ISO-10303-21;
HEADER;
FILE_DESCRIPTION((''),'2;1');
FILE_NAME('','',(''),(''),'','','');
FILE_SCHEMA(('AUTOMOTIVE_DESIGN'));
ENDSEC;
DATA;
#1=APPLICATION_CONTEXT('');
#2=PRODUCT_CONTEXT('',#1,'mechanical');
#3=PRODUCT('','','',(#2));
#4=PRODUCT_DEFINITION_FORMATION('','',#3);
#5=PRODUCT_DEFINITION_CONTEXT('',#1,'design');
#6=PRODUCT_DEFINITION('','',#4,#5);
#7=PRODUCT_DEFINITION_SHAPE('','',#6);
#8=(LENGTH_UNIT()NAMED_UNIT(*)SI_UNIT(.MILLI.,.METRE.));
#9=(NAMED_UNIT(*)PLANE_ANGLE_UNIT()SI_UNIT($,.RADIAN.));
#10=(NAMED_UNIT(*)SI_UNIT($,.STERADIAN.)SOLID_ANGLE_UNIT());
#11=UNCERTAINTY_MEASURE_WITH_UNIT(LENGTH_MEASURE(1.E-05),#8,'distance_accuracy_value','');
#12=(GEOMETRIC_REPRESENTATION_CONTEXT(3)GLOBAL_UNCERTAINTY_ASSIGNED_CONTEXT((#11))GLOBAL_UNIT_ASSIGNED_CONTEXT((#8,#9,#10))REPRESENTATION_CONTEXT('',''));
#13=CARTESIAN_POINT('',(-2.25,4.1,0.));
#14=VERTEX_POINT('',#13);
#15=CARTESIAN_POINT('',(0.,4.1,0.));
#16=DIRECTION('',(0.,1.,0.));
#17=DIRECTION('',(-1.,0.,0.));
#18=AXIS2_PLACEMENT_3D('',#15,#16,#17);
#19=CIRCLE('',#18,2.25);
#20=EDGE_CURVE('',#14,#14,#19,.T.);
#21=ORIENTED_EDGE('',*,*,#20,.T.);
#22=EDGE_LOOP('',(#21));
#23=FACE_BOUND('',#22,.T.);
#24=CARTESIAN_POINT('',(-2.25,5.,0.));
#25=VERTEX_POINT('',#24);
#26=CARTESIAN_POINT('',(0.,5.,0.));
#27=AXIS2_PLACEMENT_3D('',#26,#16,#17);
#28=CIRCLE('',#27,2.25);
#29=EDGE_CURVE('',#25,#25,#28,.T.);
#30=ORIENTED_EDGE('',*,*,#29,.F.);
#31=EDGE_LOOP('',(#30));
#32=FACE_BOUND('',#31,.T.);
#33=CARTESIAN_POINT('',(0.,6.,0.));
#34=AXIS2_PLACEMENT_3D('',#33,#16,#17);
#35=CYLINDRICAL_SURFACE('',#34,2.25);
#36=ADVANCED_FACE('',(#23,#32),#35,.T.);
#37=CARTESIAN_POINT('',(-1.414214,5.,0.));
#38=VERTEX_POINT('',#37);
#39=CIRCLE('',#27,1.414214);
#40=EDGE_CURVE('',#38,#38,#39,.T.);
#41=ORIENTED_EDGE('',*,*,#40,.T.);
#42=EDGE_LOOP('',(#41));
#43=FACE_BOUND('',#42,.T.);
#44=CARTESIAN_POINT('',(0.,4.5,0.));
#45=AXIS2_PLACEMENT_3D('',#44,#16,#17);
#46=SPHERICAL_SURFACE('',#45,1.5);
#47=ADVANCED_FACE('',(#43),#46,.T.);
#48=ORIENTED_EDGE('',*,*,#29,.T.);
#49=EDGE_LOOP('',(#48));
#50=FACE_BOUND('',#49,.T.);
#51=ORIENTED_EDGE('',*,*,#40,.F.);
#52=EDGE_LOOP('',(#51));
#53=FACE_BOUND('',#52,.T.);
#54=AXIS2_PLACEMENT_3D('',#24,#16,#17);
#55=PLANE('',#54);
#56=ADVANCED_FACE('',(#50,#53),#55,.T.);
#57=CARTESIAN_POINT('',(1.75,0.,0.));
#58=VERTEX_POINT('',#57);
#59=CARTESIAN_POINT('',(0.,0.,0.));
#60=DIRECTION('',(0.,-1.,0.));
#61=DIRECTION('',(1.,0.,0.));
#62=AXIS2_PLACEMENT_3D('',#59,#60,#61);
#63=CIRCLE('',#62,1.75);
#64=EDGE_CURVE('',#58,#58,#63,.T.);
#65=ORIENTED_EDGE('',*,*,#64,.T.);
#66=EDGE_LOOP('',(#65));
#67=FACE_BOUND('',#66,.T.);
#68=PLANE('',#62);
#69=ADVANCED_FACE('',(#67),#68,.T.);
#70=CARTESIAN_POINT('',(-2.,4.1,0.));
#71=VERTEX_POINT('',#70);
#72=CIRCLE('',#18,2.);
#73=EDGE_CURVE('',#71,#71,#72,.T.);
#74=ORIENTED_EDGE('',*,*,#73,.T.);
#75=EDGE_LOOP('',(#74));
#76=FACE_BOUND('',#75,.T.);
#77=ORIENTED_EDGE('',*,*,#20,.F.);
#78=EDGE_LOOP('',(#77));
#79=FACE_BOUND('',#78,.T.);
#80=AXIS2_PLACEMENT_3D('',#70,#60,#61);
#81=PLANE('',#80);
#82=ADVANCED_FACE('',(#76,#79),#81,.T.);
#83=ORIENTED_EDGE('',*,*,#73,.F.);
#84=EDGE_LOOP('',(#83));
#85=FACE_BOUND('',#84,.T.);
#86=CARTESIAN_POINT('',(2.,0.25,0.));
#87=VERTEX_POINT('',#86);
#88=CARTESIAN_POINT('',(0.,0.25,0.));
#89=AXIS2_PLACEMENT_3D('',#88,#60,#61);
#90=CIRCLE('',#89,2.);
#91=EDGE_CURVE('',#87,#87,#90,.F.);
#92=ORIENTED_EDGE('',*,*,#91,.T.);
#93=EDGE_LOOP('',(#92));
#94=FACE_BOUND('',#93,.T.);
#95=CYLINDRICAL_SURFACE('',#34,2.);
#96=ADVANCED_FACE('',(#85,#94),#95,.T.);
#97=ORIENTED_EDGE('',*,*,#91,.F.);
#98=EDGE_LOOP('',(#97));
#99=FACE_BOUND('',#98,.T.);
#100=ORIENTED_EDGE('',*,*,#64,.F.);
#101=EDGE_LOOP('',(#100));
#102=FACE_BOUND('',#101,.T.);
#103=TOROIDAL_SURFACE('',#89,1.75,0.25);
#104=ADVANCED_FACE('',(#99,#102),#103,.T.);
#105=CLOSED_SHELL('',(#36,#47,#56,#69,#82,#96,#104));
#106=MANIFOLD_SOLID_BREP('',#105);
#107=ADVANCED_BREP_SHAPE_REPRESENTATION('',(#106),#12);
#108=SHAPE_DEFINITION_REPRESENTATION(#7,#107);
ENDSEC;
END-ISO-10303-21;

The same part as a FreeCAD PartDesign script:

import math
import FreeCAD as App
import Part
import Sketcher
from FreeCAD import Vector
Q = App.Units.Quantity


def edges_at(feature, points):
    """Names of the edges that pass closest to the given points."""
    edges = feature.Shape.Edges
    near = lambda p: min(range(len(edges)), key=lambda i: edges[i].distToShape(Part.Vertex(*p))[0])
    return sorted({f"Edge{near(p) + 1}" for p in points})

doc = App.newDocument("Part")
body = doc.addObject("PartDesign::Body", "Body")

# Sketch on XY plane
sketch1 = doc.addObject("Sketcher::SketchObject", "Sketch")
body.addObject(sketch1)
sketch1.AttachmentSupport = (doc.XY_Plane, [""])
sketch1.MapMode = "FlatFace"
sketch1.addGeometry([
    Part.LineSegment(Vector(-2, 0, 0), Vector(0, 0, 0)),  # 0
    Part.LineSegment(Vector(0, 0, 0), Vector(0, 6, 0)),  # 1
    Part.ArcOfCircle(Part.Circle(Vector(0, 4.5, 0), Vector(0, 0, 1), 1.5), math.radians(90), math.radians(161)),  # 2
    Part.LineSegment(Vector(-1.41, 5, 0), Vector(-2.25, 5, 0)),  # 3
    Part.LineSegment(Vector(-2.25, 5, 0), Vector(-2.25, 4.1, 0)),  # 4
    Part.LineSegment(Vector(-2.25, 4.1, 0), Vector(-2, 4.1, 0)),  # 5
    Part.LineSegment(Vector(-2, 4.1, 0), Vector(-2, 0, 0)),  # 6
], False)
sketch1.addConstraint([
    Sketcher.Constraint("Coincident", 0, 2, 1, 1),
    Sketcher.Constraint("Coincident", 1, 2, 2, 1),
    Sketcher.Constraint("Coincident", 2, 2, 3, 1),
    Sketcher.Constraint("Coincident", 3, 2, 4, 1),
    Sketcher.Constraint("Coincident", 4, 2, 5, 1),
    Sketcher.Constraint("Coincident", 5, 2, 6, 1),
    Sketcher.Constraint("Coincident", 6, 2, 0, 1),
    Sketcher.Constraint("Horizontal", 0),
    Sketcher.Constraint("Vertical", 1),
    Sketcher.Constraint("Horizontal", 3),
    Sketcher.Constraint("Vertical", 4),
    Sketcher.Constraint("Horizontal", 5),
    Sketcher.Constraint("Vertical", 6),
    Sketcher.Constraint("Coincident", 0, 2, -1, 1),
    Sketcher.Constraint("PointOnObject", 2, 3, -2),
    Sketcher.Constraint("Radius", 2, Q("1.5 mm")),
    Sketcher.Constraint("DistanceX", 0, 1, 0, 2, Q("2 mm")),
    Sketcher.Constraint("DistanceY", 1, 1, 1, 2, Q("6 mm")),
    Sketcher.Constraint("DistanceY", 4, 2, 4, 1, Q("0.9 mm")),
    Sketcher.Constraint("DistanceY", 6, 2, 6, 1, Q("4.1 mm")),
    Sketcher.Constraint("DistanceX", 5, 1, 5, 2, Q("0.25 mm")),
])
revolution = doc.addObject("PartDesign::Revolution", "Revolution")
body.addObject(revolution)
revolution.Profile = sketch1
revolution.ReferenceAxis = (sketch1, ["V_Axis"])
revolution.Angle = 360
doc.recompute()

fillet = doc.addObject("PartDesign::Fillet", "Fillet")
body.addObject(fillet)
fillet.Base = (revolution, edges_at(revolution, [(2, 0, 0)]))
fillet.Radius = 0.25

doc.recompute()
